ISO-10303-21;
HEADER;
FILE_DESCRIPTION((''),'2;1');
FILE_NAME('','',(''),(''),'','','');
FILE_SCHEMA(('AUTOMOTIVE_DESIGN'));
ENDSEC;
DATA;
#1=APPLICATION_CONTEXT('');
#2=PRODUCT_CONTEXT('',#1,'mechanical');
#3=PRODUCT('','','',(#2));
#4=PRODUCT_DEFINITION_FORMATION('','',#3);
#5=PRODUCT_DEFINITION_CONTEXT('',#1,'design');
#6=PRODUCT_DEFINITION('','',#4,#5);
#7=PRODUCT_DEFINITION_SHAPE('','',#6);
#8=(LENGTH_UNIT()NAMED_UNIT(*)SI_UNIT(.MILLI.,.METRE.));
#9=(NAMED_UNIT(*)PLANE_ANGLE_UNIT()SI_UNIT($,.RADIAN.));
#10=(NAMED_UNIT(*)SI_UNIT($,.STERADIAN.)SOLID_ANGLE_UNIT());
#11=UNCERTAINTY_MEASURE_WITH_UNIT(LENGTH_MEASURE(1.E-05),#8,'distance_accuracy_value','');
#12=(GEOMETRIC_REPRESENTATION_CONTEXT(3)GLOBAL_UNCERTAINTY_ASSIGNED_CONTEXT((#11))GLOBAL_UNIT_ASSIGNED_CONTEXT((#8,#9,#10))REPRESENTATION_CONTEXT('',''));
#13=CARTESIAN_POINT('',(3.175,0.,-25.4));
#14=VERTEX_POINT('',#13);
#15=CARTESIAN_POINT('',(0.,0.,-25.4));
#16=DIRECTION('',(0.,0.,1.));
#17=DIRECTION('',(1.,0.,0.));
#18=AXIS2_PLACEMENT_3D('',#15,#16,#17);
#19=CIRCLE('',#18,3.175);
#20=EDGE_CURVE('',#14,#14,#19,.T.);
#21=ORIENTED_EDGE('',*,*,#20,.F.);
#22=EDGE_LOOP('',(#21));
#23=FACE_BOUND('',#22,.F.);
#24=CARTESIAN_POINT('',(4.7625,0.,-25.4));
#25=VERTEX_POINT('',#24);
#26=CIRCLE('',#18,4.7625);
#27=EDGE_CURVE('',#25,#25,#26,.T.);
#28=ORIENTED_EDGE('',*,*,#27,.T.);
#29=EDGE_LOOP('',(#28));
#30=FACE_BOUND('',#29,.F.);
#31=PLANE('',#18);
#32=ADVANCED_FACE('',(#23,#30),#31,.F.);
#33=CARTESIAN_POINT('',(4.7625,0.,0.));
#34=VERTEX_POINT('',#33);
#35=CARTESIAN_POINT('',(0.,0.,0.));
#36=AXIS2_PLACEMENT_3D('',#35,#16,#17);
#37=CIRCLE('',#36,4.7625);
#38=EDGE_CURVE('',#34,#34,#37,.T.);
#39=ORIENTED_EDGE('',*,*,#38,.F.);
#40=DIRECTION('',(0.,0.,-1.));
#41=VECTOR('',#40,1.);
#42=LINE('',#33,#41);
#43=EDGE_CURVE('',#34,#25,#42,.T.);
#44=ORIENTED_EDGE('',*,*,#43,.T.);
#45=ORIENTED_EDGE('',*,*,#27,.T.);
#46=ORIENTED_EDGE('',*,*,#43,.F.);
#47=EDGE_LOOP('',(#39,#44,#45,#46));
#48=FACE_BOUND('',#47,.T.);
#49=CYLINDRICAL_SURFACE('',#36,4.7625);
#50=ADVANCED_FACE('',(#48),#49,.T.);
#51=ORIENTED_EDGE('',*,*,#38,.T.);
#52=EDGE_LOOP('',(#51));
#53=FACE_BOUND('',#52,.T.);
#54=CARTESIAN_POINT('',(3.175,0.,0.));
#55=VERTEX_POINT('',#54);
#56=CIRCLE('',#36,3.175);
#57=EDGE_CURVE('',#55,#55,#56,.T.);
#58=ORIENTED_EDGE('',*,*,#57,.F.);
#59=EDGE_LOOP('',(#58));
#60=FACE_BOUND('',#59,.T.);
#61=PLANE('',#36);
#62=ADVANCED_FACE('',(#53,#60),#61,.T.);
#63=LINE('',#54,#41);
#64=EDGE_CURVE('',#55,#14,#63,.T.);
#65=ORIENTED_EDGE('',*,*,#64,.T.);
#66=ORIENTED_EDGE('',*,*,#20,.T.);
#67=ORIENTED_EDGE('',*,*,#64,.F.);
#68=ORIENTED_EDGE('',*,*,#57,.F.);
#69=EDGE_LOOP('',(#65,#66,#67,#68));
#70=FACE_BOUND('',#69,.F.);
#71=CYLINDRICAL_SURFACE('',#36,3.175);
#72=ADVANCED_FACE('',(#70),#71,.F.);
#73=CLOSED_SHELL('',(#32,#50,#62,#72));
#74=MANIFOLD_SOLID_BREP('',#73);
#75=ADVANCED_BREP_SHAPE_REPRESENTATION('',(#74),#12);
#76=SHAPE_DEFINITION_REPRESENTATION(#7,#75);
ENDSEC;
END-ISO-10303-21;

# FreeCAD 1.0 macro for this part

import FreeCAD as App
import Part
import Sketcher
Q = App.Units.Quantity

doc = App.newDocument("Part")
body = doc.addObject("PartDesign::Body", "Body")

# Sketch on XY plane
sketch1 = body.newObject("Sketcher::SketchObject", "Sketch")
sketch1.AttachmentSupport = (doc.getObject("XY_Plane"), [""])
sketch1.MapMode = "FlatFace"
sketch1.addGeometry(Part.Circle(App.Vector(0, 0, 0), App.Vector(0, 0, 1), 4.8), False)
sketch1.addGeometry(Part.Circle(App.Vector(0, 0, 0), App.Vector(0, 0, 1), 3.2), False)
sketch1.addConstraint(Sketcher.Constraint("Coincident", 0, 3, -1, 1))
sketch1.addConstraint(Sketcher.Constraint("Coincident", 1, 3, -1, 1))
sketch1.addConstraint(Sketcher.Constraint("Diameter", 1, Q("0.25 in")))
sketch1.addConstraint(Sketcher.Constraint("Diameter", 0, Q("0.375 in")))
pad1 = body.newObject("PartDesign::Pad", "Pad")
pad1.Profile = sketch1
pad1.Length = Q("1 in")
pad1.Reversed = True

doc.recompute()
